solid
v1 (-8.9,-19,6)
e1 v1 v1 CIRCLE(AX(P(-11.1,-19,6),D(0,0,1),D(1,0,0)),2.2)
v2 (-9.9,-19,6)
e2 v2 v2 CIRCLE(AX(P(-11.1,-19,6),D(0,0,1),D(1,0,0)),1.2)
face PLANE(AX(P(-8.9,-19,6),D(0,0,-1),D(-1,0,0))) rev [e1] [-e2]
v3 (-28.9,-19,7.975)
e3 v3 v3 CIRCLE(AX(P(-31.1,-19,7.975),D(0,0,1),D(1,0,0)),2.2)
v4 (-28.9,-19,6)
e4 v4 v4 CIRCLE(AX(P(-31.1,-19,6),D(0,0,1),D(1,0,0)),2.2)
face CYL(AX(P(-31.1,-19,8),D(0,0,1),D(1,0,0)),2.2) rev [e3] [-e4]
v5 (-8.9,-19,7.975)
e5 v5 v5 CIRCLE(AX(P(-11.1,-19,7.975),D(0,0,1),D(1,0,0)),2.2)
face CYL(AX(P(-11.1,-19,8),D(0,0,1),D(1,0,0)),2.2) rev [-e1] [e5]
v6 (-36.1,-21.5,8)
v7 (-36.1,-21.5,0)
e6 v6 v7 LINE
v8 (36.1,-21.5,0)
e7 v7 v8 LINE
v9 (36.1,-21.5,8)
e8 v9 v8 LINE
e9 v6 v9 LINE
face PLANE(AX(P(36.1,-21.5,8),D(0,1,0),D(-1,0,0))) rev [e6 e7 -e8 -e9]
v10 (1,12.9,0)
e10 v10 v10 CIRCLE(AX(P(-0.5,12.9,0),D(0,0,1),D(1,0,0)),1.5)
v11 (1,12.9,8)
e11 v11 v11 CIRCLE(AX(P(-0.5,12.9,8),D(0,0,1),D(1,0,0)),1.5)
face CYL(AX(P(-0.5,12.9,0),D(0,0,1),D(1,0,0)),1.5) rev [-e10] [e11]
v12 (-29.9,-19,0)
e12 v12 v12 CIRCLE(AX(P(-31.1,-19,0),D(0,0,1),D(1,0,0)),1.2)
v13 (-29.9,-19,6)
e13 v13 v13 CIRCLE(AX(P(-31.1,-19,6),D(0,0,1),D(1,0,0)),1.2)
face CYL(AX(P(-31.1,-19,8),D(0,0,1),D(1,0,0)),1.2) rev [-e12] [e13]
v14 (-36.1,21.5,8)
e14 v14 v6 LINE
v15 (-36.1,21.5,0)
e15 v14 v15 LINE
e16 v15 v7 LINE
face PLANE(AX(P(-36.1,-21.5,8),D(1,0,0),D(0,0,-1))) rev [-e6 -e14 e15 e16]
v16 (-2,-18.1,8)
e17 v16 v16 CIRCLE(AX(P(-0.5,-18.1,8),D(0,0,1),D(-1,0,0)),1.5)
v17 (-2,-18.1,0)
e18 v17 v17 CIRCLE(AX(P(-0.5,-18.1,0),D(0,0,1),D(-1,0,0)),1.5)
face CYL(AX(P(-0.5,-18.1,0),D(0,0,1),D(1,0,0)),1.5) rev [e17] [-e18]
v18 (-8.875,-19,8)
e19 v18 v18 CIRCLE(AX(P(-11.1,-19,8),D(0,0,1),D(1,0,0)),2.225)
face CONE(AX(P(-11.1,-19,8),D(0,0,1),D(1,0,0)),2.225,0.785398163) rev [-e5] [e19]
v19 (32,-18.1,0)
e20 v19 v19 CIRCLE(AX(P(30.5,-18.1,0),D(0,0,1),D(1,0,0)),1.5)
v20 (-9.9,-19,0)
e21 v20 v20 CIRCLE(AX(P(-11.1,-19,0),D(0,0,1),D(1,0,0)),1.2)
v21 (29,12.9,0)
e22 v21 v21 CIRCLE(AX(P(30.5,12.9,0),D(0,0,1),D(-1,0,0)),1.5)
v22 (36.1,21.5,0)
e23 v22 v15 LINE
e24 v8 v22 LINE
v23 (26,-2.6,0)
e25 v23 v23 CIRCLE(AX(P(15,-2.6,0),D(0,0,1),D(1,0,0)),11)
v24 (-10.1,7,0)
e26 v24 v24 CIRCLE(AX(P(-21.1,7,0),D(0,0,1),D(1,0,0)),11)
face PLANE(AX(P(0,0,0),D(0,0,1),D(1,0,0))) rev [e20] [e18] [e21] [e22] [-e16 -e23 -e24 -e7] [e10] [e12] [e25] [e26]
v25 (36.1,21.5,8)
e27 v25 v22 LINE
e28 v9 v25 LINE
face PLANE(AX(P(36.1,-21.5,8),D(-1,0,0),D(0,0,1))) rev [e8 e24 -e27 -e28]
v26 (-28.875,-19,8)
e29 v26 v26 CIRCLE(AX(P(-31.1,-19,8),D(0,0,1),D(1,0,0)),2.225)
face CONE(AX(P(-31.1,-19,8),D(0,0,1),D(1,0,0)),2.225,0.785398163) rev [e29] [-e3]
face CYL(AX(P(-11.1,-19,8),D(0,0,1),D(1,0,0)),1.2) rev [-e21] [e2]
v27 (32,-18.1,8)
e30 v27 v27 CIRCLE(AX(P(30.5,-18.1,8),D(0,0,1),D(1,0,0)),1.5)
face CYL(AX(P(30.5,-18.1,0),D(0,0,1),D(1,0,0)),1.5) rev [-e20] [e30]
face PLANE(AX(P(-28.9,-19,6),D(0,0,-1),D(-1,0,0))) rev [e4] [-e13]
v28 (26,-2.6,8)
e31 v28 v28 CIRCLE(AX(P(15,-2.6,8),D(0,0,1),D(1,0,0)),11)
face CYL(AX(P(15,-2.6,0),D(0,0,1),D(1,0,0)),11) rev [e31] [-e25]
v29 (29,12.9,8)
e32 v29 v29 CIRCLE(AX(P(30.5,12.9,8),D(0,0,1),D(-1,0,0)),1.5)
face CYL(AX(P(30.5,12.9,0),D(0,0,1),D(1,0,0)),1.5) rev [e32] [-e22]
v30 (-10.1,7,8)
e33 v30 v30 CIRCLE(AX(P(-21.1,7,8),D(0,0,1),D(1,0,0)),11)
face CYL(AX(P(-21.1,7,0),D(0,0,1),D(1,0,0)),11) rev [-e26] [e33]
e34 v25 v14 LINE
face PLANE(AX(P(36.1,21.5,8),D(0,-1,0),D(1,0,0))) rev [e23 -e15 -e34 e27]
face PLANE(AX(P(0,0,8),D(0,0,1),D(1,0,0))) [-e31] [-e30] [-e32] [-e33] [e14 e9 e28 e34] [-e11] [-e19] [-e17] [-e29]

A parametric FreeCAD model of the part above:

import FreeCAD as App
import Part
import Sketcher
Q = App.Units.Quantity


def add_polygon(sketch, points):
    """Adds a closed chain of lines whose ends are joined by coincident constraints."""
    first, n = sketch.GeometryCount, len(points)
    for a, b in zip(points, points[1:] + points[:1]):
        sketch.addGeometry(Part.LineSegment(App.Vector(*a, 0), App.Vector(*b, 0)), False)
    for i in range(n):
        sketch.addConstraint(Sketcher.Constraint("Coincident", first + i, 2, first + (i + 1) % n, 1))

doc = App.newDocument("Part")
body = doc.addObject("PartDesign::Body", "Body")

# Sketch on XY plane
sketch1 = body.newObject("Sketcher::SketchObject", "Sketch")
sketch1.AttachmentSupport = (doc.getObject("XY_Plane"), [""])
sketch1.MapMode = "FlatFace"
add_polygon(sketch1, [(-36, 22), (-36, -22), (36, -22), (36, 22)])  # lines 0-3
sketch1.addConstraint([
    Sketcher.Constraint("Vertical", 0),
    Sketcher.Constraint("Horizontal", 1),
    Sketcher.Constraint("Vertical", 2),
    Sketcher.Constraint("Horizontal", 3),
    Sketcher.Constraint("Symmetric", 0, 2, 2, 2, -1, 1),
    Sketcher.Constraint("DistanceY", 0, 2, 0, 1, Q("43 mm")),
    Sketcher.Constraint("DistanceX", 1, 1, 1, 2, Q("72.2 mm")),
])
pad1 = body.newObject("PartDesign::Pad", "Pad")
pad1.Profile = sketch1
pad1.Length = 8

# Sketch on XY plane
sketch2 = body.newObject("Sketcher::SketchObject", "Sketch001")
sketch2.AttachmentSupport = (doc.getObject("XY_Plane"), [""])
sketch2.MapMode = "FlatFace"
sketch2.AttachmentOffset = App.Placement(App.Vector(0, 0, 8), App.Rotation())
sketch2.addGeometry([
    Part.Circle(App.Vector(-21.1, 7, 0), App.Vector(0, 0, 1), 11),  # 0
    Part.Circle(App.Vector(15, -2.6, 0), App.Vector(0, 0, 1), 11),  # 1
    Part.Circle(App.Vector(-0.5, 12.9, 0), App.Vector(0, 0, 1), 1.5),  # 2
    Part.Circle(App.Vector(30.5, 12.9, 0), App.Vector(0, 0, 1), 1.5),  # 3
    Part.Circle(App.Vector(30.5, -18.1, 0), App.Vector(0, 0, 1), 1.5),  # 4
    Part.Circle(App.Vector(-0.5, -18.1, 0), App.Vector(0, 0, 1), 1.5),  # 5
], False)
sketch2.addConstraint([
    Sketcher.Constraint("Equal", 0, 1),
    Sketcher.Constraint("Equal", 2, 3),
    Sketcher.Constraint("Equal", 3, 4),
    Sketcher.Constraint("Equal", 4, 5),
    Sketcher.Constraint("Horizontal", 2, 3, 3, 3),
    Sketcher.Constraint("Horizontal", 4, 3, 5, 3),
    Sketcher.Constraint("Vertical", 3, 3, 4, 3),
    Sketcher.Constraint("Vertical", 2, 3, 5, 3),
    Sketcher.Constraint("Diameter", 0, Q("22 mm")),
    Sketcher.Constraint("Diameter", 2, Q("3 mm")),
    Sketcher.Constraint("DistanceY", -1, 1, 0, 3, Q("7 mm")),
    Sketcher.Constraint("DistanceX", -1, 1, 1, 3, Q("15 mm")),
    Sketcher.Constraint("DistanceX", 2, 3, 3, 3, Q("31 mm")),
    Sketcher.Constraint("DistanceY", 4, 3, 3, 3, Q("31 mm")),
    Sketcher.Constraint("DistanceX", 0, 3, -1, 1, Q("21.1 mm")),
    Sketcher.Constraint("DistanceY", 1, 3, -1, 1, Q("2.6 mm")),
    Sketcher.Constraint("DistanceX", 2, 3, -1, 1, Q("0.5 mm")),
    Sketcher.Constraint("DistanceY", -1, 1, 2, 3, Q("12.9 mm")),
])
pocket1 = body.newObject("PartDesign::Pocket", "Pocket")
pocket1.Profile = sketch2
pocket1.Type = "ThroughAll"

# Sketch on YZ plane
sketch3 = body.newObject("Sketcher::SketchObject", "Sketch002")
sketch3.AttachmentSupport = (doc.getObject("YZ_Plane"), [""])
sketch3.MapMode = "FlatFace"
sketch3.AttachmentOffset = App.Placement(App.Vector(0, 0, -31.1), App.Rotation())
add_polygon(sketch3, [(-19, 0), (-19, 8), (-21.225, 8), (-21.2, 7.975), (-21.2, 6), (-20.2, 6), (-20.2, 0)])  # lines 0-6
sketch3.addGeometry(Part.LineSegment(App.Vector(-19, 8, 0), App.Vector(-19, 0, 0)), True)  # axis
sketch3.addConstraint([
    Sketcher.Constraint("Vertical", 0),
    Sketcher.Constraint("Horizontal", 1),
    Sketcher.Constraint("Vertical", 3),
    Sketcher.Constraint("Horizontal", 4),
    Sketcher.Constraint("Vertical", 5),
    Sketcher.Constraint("Horizontal", 6),
    Sketcher.Constraint("Vertical", 7),
    Sketcher.Constraint("Coincident", 7, 1, 0, 2),
    Sketcher.Constraint("PointOnObject", 5, 2, -1),
    Sketcher.Constraint("PointOnObject", 7, 2, -1),
    Sketcher.Constraint("DistanceX", 4, 1, 4, 2, Q("1 mm")),
    Sketcher.Constraint("DistanceY", 0, 1, 0, 2, Q("8 mm")),
    Sketcher.Constraint("DistanceY", 5, 2, 5, 1, Q("6 mm")),
    Sketcher.Constraint("Angle", 2, Q("-45 deg")),
    Sketcher.Constraint("DistanceX", 6, 1, 6, 2, Q("1.2 mm")),
    Sketcher.Constraint("DistanceX", 0, 2, -1, 1, Q("19 mm")),
    Sketcher.Constraint("DistanceX", 1, 2, 1, 1, Q("2.225 mm")),
])
groove = body.newObject("PartDesign::Groove", "Groove")
groove.Profile = sketch3
groove.ReferenceAxis = (sketch3, ["Axis0"])
groove.Angle = 360
doc.recompute()

linearpattern = body.newObject("PartDesign::LinearPattern", "LinearPattern")
linearpattern.Originals = [groove]
linearpattern.Direction = (doc.getObject("X_Axis"), [""])
linearpattern.Mode = "offset"
linearpattern.Offset = 20
linearpattern.Occurrences = 2
body.Tip = linearpattern

doc.recompute()
